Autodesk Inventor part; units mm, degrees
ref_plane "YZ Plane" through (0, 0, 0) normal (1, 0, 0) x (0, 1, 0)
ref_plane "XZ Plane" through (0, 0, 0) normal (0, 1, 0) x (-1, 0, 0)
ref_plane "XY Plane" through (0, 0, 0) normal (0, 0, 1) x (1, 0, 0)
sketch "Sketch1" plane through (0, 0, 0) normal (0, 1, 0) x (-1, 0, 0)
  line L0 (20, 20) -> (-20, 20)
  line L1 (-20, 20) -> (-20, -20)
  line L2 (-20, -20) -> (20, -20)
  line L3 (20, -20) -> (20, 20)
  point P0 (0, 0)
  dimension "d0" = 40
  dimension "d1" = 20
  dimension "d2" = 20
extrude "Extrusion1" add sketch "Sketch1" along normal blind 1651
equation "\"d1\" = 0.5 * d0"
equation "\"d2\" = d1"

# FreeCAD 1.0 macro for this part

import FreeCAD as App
import Part
import Sketcher
from FreeCAD import Vector
Q = App.Units.Quantity

doc = App.newDocument("Part")
body = doc.addObject("PartDesign::Body", "Body")

# Sketch on XZ plane
sketch1 = doc.addObject("Sketcher::SketchObject", "Sketch")
body.addObject(sketch1)
sketch1.AttachmentSupport = (doc.XZ_Plane, [""])
sketch1.MapMode = "FlatFace"
sketch1.addGeometry(Part.LineSegment(Vector(-20, -20, 0), Vector(-20, 20, 0)), False)
sketch1.addGeometry(Part.LineSegment(Vector(-20, 20, 0), Vector(20, 20, 0)), False)
sketch1.addGeometry(Part.LineSegment(Vector(20, 20, 0), Vector(20, -20, 0)), False)
sketch1.addGeometry(Part.LineSegment(Vector(20, -20, 0), Vector(-20, -20, 0)), False)
sketch1.addConstraint(Sketcher.Constraint("Coincident", 0, 2, 1, 1))
sketch1.addConstraint(Sketcher.Constraint("Coincident", 1, 2, 2, 1))
sketch1.addConstraint(Sketcher.Constraint("Coincident", 2, 2, 3, 1))
sketch1.addConstraint(Sketcher.Constraint("Coincident", 3, 2, 0, 1))
sketch1.addConstraint(Sketcher.Constraint("Vertical", 0))
sketch1.addConstraint(Sketcher.Constraint("Horizontal", 1))
sketch1.addConstraint(Sketcher.Constraint("Vertical", 2))
sketch1.addConstraint(Sketcher.Constraint("Horizontal", 3))
sketch1.addConstraint(Sketcher.Constraint("Symmetric", 0, 2, 2, 2, -1, 1))
sketch1.addConstraint(Sketcher.Constraint("Equal", 3, 0))
sketch1.addConstraint(Sketcher.Constraint("DistanceX", 1, 1, 1, 2, Q("1.5748 in")))
pad1 = doc.addObject("PartDesign::Pad", "Pad")
body.addObject(pad1)
pad1.Profile = sketch1
pad1.Length = Q("65 in")
pad1.Reversed = True

doc.recompute()
